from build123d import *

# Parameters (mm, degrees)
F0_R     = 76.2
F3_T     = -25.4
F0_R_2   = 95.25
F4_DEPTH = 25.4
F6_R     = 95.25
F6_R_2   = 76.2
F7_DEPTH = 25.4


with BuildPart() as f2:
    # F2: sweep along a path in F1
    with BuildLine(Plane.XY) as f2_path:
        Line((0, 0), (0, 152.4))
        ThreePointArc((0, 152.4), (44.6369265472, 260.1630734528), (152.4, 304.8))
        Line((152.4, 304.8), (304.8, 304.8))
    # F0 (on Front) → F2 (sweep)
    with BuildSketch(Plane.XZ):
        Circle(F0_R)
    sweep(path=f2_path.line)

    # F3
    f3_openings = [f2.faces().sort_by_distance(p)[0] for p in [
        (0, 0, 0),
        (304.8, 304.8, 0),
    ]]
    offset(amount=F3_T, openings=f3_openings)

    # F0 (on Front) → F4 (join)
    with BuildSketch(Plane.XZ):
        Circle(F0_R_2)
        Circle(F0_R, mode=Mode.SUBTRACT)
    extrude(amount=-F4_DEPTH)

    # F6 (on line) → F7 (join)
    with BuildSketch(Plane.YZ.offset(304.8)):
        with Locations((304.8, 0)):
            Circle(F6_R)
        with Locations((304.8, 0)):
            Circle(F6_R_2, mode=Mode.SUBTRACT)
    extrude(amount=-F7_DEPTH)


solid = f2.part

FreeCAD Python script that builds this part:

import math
import FreeCAD as App
import Part
import Sketcher
from FreeCAD import Vector
Q = App.Units.Quantity


def faces_at(feature, points):
    """Names of the faces that lie closest to the given points."""
    faces = feature.Shape.Faces
    near = lambda p: min(range(len(faces)), key=lambda i: faces[i].distToShape(Part.Vertex(*p))[0])
    return sorted({f"Face{near(p) + 1}" for p in points})

doc = App.newDocument("Part")
body = doc.addObject("PartDesign::Body", "Body")

sketch1 = body.newObject("Sketcher::SketchObject", "Sketch")
sketch1.AttachmentSupport = (doc.getObject("XZ_Plane"), [""])
sketch1.MapMode = "FlatFace"
sketch1.addGeometry(Part.Circle(Vector(0, 0, 0), Vector(0, 0, 1), 76), False)
sketch1.addConstraint([
    Sketcher.Constraint("Coincident", 0, 3, -1, 1),
    Sketcher.Constraint("Diameter", 0, Q("6 in")),
])

sketch2 = body.newObject("Sketcher::SketchObject", "Sketch001")
sketch2.AttachmentSupport = (doc.getObject("XY_Plane"), [""])
sketch2.MapMode = "FlatFace"
sketch2.addGeometry([
    Part.LineSegment(Vector(0, 0, 0), Vector(0, 152, 0)),
    Part.ArcOfCircle(Part.Circle(Vector(152, 152, 0), Vector(0, 0, 1), 152), math.radians(90), math.radians(180)),
    Part.LineSegment(Vector(152, 305, 0), Vector(305, 305, 0)),
], False)
sketch2.addConstraint([
    Sketcher.Constraint("Tangent", 0, 2, 1, 2),
    Sketcher.Constraint("Tangent", 1, 1, 2, 1),
    Sketcher.Constraint("Vertical", 0),
    Sketcher.Constraint("Horizontal", 2),
    Sketcher.Constraint("Coincident", 0, 1, -1, 1),
    Sketcher.Constraint("Equal", 2, 0),
    Sketcher.Constraint("Radius", 1, Q("6 in")),
    Sketcher.Constraint("DistanceX", 2, 1, 2, 2, Q("6 in")),
])
doc.recompute()

additivepipe = body.newObject("PartDesign::AdditivePipe", "AdditivePipe")
additivepipe.Profile = sketch1
additivepipe.Spine = (sketch2, ["Edge1", "Edge2", "Edge3"])
doc.recompute()

thickness = body.newObject("PartDesign::Thickness", "Thickness")
thickness.Base = (additivepipe, faces_at(additivepipe, [(0, 0, 0), (304.8, 304.8, 0)]))
thickness.Value = Q("1 in")
thickness.Reversed = True
thickness.Join = "Arc"

sketch3 = body.newObject("Sketcher::SketchObject", "Sketch002")
sketch3.AttachmentSupport = (doc.getObject("XZ_Plane"), [""])
sketch3.MapMode = "FlatFace"
sketch3.addGeometry([
    Part.Circle(Vector(0, 0, 0), Vector(0, 0, 1), 95),
    Part.Circle(Vector(0, 0, 0), Vector(0, 0, 1), 76),
], False)
sketch3.addConstraint([
    Sketcher.Constraint("Coincident", 0, 3, -1, 1),
    Sketcher.Constraint("Coincident", 1, 3, -1, 1),
    Sketcher.Constraint("Diameter", 1, Q("6 in")),
    Sketcher.Constraint("Diameter", 0, Q("7.5 in")),
])
pad1 = body.newObject("PartDesign::Pad", "Pad")
pad1.Profile = sketch3
pad1.Length = Q("1 in")
pad1.Reversed = True

sketch4 = body.newObject("Sketcher::SketchObject", "Sketch003")
sketch4.AttachmentSupport = (doc.getObject("YZ_Plane"), [""])
sketch4.MapMode = "FlatFace"
sketch4.AttachmentOffset = App.Placement(Vector(0, 0, 12 * 25.4), App.Rotation())
sketch4.addGeometry([
    Part.Circle(Vector(305, 0, 0), Vector(0, 0, 1), 95),
    Part.Circle(Vector(305, 0, 0), Vector(0, 0, 1), 76),
], False)
sketch4.addConstraint([
    Sketcher.Constraint("Coincident", 1, 3, 0, 3),
    Sketcher.Constraint("PointOnObject", 0, 3, -1),
    Sketcher.Constraint("Diameter", 1, Q("6 in")),
    Sketcher.Constraint("Diameter", 0, Q("7.5 in")),
    Sketcher.Constraint("DistanceX", -1, 1, 0, 3, Q("12 in")),
])
pad2 = body.newObject("PartDesign::Pad", "Pad001")
pad2.Profile = sketch4
pad2.Length = Q("1 in")
pad2.Reversed = True

doc.recompute()
